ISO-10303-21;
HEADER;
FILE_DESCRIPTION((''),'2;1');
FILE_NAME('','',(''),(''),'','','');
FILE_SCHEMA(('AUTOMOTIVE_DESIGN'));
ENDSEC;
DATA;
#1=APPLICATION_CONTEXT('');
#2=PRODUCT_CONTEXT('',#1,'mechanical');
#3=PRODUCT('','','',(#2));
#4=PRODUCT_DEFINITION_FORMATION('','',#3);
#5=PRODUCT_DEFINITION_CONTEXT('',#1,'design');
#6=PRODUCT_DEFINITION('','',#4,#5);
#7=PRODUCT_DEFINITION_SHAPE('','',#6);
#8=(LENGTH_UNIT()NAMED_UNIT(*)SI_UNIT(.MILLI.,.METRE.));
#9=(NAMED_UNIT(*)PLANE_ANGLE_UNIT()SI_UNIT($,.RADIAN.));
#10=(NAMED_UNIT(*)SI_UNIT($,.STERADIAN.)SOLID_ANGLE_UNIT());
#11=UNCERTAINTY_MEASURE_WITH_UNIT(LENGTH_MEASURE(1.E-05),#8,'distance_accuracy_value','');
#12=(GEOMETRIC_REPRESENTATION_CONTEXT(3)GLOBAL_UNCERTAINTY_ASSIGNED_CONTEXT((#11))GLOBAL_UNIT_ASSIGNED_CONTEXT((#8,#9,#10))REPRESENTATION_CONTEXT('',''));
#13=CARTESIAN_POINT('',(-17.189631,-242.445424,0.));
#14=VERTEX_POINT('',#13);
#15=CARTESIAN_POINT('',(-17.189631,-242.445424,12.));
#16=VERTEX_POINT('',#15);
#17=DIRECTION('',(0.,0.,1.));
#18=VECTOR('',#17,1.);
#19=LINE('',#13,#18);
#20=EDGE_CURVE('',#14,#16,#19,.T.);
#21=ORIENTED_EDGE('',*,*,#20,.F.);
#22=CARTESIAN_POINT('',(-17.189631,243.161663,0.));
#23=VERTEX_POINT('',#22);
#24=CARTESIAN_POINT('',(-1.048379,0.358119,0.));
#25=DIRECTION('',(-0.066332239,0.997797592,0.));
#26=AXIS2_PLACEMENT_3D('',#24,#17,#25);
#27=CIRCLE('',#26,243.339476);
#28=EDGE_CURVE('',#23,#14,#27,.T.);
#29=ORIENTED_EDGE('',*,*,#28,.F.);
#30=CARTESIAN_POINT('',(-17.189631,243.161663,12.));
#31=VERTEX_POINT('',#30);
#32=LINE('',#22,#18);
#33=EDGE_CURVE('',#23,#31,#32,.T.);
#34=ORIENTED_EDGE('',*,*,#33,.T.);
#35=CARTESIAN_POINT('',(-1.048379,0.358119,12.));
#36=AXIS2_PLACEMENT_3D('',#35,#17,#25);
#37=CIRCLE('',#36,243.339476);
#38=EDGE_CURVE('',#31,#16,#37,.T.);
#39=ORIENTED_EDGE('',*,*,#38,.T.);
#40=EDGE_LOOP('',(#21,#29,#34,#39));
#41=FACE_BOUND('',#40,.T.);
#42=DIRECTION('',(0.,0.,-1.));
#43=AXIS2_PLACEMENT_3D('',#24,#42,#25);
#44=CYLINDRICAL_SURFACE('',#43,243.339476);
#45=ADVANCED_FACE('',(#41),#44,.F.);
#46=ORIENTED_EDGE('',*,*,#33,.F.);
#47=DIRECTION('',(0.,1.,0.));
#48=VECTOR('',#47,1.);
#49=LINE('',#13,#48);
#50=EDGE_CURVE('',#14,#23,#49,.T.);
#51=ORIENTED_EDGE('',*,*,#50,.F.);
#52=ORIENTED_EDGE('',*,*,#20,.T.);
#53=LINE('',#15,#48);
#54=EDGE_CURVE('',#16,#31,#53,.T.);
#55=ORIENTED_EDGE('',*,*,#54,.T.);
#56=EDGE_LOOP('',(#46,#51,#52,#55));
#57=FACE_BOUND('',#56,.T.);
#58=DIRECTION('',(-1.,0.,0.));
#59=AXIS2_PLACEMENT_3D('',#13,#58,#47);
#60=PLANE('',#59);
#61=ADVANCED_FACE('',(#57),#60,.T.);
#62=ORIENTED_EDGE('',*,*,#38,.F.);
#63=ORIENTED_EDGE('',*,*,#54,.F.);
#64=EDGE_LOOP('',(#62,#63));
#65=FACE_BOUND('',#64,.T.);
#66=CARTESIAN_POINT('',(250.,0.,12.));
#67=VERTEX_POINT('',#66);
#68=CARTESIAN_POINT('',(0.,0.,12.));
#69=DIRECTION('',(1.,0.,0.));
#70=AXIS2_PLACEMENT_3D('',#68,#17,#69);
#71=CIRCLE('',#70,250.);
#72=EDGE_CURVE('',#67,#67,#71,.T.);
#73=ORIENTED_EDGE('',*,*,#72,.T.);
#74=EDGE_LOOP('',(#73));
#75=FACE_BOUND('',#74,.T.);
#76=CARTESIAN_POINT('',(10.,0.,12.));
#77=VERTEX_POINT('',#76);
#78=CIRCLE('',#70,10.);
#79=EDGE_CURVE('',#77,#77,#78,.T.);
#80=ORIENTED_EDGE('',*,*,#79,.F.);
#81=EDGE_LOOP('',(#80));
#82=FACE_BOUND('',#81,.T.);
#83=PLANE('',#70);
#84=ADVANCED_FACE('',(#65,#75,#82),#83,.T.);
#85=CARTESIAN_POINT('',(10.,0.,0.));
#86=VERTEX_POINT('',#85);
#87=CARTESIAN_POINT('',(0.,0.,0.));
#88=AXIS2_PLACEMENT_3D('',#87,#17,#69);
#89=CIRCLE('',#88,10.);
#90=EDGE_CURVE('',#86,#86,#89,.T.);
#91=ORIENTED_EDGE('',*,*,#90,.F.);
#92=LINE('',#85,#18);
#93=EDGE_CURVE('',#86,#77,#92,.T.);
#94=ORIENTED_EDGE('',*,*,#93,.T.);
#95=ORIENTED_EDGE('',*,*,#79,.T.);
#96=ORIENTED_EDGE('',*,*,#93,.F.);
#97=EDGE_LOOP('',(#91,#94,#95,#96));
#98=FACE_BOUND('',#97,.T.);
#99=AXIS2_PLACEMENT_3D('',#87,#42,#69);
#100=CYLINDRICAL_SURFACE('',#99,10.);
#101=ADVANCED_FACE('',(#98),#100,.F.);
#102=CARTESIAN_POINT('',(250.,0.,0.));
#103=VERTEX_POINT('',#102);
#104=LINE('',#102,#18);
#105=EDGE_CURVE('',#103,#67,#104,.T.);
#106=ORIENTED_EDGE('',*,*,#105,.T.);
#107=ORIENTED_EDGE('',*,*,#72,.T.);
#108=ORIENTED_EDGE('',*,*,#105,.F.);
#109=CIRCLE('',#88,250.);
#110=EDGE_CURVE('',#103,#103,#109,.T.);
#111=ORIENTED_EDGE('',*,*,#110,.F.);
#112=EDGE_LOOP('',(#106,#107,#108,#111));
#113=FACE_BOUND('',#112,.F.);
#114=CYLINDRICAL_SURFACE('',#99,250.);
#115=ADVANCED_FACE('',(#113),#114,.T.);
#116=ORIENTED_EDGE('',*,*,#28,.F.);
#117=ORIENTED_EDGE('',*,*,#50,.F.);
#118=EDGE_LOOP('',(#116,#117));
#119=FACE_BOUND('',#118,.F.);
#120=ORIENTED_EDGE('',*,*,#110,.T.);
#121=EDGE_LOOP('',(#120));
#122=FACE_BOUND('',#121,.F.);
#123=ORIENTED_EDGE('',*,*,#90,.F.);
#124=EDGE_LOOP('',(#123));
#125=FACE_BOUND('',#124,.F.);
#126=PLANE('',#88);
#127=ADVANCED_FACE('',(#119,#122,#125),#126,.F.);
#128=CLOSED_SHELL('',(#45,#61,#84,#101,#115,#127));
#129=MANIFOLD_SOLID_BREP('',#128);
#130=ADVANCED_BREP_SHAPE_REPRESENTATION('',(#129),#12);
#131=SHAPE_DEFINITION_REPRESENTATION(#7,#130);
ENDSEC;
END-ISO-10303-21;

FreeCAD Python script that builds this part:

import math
import FreeCAD as App
import Part
import Sketcher
from FreeCAD import Vector
Q = App.Units.Quantity

doc = App.newDocument("Part")
body = doc.addObject("PartDesign::Body", "Body")

# Sketch on XY plane
sketch1 = body.newObject("Sketcher::SketchObject", "Sketch")
sketch1.AttachmentSupport = (doc.getObject("XY_Plane"), [""])
sketch1.MapMode = "FlatFace"
sketch1.addGeometry(Part.Circle(Vector(0, 0, 0), Vector(0, 0, 1), 250), False)
sketch1.addConstraint(Sketcher.Constraint("Coincident", 0, 3, -1, 1))
sketch1.addConstraint(Sketcher.Constraint("Diameter", 0, Q("500 mm")))
pad1 = body.newObject("PartDesign::Pad", "Pad")
pad1.Profile = sketch1
pad1.Length = 12

# Sketch on XY plane
sketch2 = body.newObject("Sketcher::SketchObject", "Sketch001")
sketch2.AttachmentSupport = (doc.getObject("XY_Plane"), [""])
sketch2.MapMode = "FlatFace"
sketch2.addGeometry(Part.Circle(Vector(0, 0, 0), Vector(0, 0, 1), 10), False)
sketch2.addConstraint(Sketcher.Constraint("Coincident", 0, 3, -1, 1))
sketch2.addConstraint(Sketcher.Constraint("Diameter", 0, Q("20 mm")))
pocket1 = body.newObject("PartDesign::Pocket", "Pocket")
pocket1.Profile = sketch2
pocket1.Length = 12
pocket1.Reversed = True

# Sketch on XY plane
sketch3 = body.newObject("Sketcher::SketchObject", "Sketch002")
sketch3.AttachmentSupport = (doc.getObject("XY_Plane"), [""])
sketch3.MapMode = "FlatFace"
sketch3.addGeometry(Part.LineSegment(Vector(-17, -242, 0), Vector(-17, 243, 0)), False)
sketch3.addGeometry(Part.ArcOfCircle(Part.Circle(Vector(-1, 0, 0), Vector(0, 0, 1), 243), math.radians(94), math.radians(266)), False)
sketch3.addConstraint(Sketcher.Constraint("Coincident", 0, 1, 1, 2))
sketch3.addConstraint(Sketcher.Constraint("Coincident", 1, 1, 0, 2))
sketch3.addConstraint(Sketcher.Constraint("Vertical", 0))
sketch3.addConstraint(Sketcher.Constraint("Radius", 1, Q("243.339476 mm")))
sketch3.addConstraint(Sketcher.Constraint("DistanceY", 0, 1, 0, 2, Q("485.607087 mm")))
sketch3.addConstraint(Sketcher.Constraint("DistanceX", 1, 3, -1, 1, Q("1.048379 mm")))
sketch3.addConstraint(Sketcher.Constraint("DistanceY", -1, 1, 1, 3, Q("0.358119 mm")))
pocket2 = body.newObject("PartDesign::Pocket", "Pocket001")
pocket2.Profile = sketch3
pocket2.Length = 12
pocket2.Reversed = True

doc.recompute()
